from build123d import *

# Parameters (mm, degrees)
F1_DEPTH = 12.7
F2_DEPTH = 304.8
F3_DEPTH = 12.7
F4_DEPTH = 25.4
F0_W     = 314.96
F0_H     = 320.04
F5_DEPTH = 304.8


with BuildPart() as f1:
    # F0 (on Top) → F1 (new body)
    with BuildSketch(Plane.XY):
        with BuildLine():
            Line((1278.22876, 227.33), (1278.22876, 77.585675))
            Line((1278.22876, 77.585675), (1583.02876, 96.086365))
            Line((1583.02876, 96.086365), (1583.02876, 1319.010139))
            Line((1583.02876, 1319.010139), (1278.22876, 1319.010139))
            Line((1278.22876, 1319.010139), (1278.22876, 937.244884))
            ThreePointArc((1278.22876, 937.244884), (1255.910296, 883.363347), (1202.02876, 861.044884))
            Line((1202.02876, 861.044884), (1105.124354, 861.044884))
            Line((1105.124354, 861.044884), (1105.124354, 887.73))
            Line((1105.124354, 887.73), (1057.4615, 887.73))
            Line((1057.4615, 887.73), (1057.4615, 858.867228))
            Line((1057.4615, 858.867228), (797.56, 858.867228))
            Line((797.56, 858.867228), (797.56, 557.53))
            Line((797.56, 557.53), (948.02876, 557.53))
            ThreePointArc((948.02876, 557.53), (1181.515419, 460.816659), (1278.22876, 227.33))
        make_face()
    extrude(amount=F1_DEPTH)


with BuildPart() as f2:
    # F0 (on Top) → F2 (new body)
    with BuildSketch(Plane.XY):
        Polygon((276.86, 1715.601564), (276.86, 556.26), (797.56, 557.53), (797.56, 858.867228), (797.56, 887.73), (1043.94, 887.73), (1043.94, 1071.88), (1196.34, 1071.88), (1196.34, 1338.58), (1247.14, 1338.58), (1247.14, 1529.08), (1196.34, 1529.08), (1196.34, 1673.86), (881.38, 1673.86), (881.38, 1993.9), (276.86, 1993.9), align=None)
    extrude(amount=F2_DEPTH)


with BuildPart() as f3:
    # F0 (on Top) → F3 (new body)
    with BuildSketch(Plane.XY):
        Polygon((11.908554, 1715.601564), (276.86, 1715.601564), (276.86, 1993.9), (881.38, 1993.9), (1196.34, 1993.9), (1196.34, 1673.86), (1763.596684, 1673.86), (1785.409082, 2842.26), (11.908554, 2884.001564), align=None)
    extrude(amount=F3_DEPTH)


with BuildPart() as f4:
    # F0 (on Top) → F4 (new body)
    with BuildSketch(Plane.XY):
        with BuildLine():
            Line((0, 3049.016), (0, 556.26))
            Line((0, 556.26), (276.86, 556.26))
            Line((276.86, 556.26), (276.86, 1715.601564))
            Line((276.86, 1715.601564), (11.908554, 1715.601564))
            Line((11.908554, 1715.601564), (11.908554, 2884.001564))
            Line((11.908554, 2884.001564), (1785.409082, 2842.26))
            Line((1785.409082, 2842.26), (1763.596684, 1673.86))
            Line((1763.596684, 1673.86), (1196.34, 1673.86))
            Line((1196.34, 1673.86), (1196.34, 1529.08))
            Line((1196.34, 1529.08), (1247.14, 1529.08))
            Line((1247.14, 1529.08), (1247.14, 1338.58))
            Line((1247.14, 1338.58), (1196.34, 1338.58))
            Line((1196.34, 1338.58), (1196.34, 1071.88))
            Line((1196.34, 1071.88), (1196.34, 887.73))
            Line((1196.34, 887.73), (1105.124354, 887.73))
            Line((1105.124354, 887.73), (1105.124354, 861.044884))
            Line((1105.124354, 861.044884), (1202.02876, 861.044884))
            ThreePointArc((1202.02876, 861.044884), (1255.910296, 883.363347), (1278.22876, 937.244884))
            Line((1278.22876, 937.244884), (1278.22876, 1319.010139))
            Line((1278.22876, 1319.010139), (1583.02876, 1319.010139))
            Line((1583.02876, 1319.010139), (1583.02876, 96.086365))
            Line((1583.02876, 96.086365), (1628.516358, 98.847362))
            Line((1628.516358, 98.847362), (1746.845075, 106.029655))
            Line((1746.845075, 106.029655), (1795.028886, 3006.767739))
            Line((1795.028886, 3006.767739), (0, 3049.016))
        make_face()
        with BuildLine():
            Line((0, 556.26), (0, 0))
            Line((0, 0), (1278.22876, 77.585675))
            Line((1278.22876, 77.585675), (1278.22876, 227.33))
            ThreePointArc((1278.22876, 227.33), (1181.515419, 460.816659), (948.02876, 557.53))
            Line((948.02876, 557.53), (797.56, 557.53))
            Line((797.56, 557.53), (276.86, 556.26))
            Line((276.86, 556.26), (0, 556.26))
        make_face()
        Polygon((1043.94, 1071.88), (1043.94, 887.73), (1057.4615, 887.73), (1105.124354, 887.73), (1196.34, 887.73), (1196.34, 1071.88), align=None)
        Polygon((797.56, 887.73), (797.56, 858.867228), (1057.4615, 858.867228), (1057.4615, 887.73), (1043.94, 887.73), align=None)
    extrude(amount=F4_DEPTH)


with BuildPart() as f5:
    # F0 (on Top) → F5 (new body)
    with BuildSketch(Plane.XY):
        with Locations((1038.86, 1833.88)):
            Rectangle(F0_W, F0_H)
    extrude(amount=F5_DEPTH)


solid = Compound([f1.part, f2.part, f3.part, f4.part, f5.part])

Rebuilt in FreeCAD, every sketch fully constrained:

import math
import FreeCAD as App
import Part
import Sketcher

V = App.Vector
Q = App.Units.Quantity


def add_polygon(sketch, points):
    """Adds a closed chain of lines whose ends are joined by coincident constraints."""
    first, n = sketch.GeometryCount, len(points)
    for a, b in zip(points, points[1:] + points[:1]):
        sketch.addGeometry(Part.LineSegment(App.Vector(*a, 0), App.Vector(*b, 0)), False)
    for i in range(n):
        sketch.addConstraint(Sketcher.Constraint("Coincident", first + i, 2, first + (i + 1) % n, 1))

doc = App.newDocument("Part")
body = doc.addObject("PartDesign::Body", "Body")

# Sketch on XY plane
sketch1 = body.newObject("Sketcher::SketchObject", "Sketch")
sketch1.AttachmentSupport = (doc.getObject("XY_Plane"), [""])
sketch1.MapMode = "FlatFace"
sketch1.addGeometry(Part.LineSegment(V(1278.22876, 227.33, 0), V(1278.22876, 77.585675, 0)), False)
sketch1.addGeometry(Part.LineSegment(V(1278.22876, 77.585675, 0), V(1583.02876, 96.086365, 0)), False)
sketch1.addGeometry(Part.LineSegment(V(1583.02876, 96.086365, 0), V(1583.02876, 1319.010139, 0)), False)
sketch1.addGeometry(Part.LineSegment(V(1583.02876, 1319.010139, 0), V(1278.22876, 1319.010139, 0)), False)
sketch1.addGeometry(Part.LineSegment(V(1278.22876, 1319.010139, 0), V(1278.22876, 937.244884, 0)), False)
sketch1.addGeometry(Part.ArcOfCircle(Part.Circle(V(1202.028759, 937.244885, 0), V(0, 0, 1), 76.200001), math.radians(-89.999999), math.radians(-0.000001)), False)
sketch1.addGeometry(Part.LineSegment(V(1202.02876, 861.044884, 0), V(1105.124354, 861.044884, 0)), False)
sketch1.addGeometry(Part.LineSegment(V(1105.124354, 861.044884, 0), V(1105.124354, 887.73, 0)), False)
sketch1.addGeometry(Part.LineSegment(V(1105.124354, 887.73, 0), V(1057.4615, 887.73, 0)), False)
sketch1.addGeometry(Part.LineSegment(V(1057.4615, 887.73, 0), V(1057.4615, 858.867228, 0)), False)
sketch1.addGeometry(Part.LineSegment(V(1057.4615, 858.867228, 0), V(797.56, 858.867228, 0)), False)
sketch1.addGeometry(Part.LineSegment(V(797.56, 858.867228, 0), V(797.56, 557.53, 0)), False)
sketch1.addGeometry(Part.LineSegment(V(797.56, 557.53, 0), V(948.02876, 557.53, 0)), False)
sketch1.addGeometry(Part.ArcOfCircle(Part.Circle(V(948.028759, 227.329999, 0), V(0, 0, 1), 330.200001), math.radians(0), math.radians(90)), False)
sketch1.addConstraint(Sketcher.Constraint("Coincident", 0, 2, 1, 1))
sketch1.addConstraint(Sketcher.Constraint("Coincident", 1, 2, 2, 1))
sketch1.addConstraint(Sketcher.Constraint("Coincident", 2, 2, 3, 1))
sketch1.addConstraint(Sketcher.Constraint("Coincident", 3, 2, 4, 1))
sketch1.addConstraint(Sketcher.Constraint("Tangent", 4, 2, 5, 2))
sketch1.addConstraint(Sketcher.Constraint("Tangent", 5, 1, 6, 1))
sketch1.addConstraint(Sketcher.Constraint("Coincident", 6, 2, 7, 1))
sketch1.addConstraint(Sketcher.Constraint("Coincident", 7, 2, 8, 1))
sketch1.addConstraint(Sketcher.Constraint("Coincident", 8, 2, 9, 1))
sketch1.addConstraint(Sketcher.Constraint("Coincident", 9, 2, 10, 1))
sketch1.addConstraint(Sketcher.Constraint("Coincident", 10, 2, 11, 1))
sketch1.addConstraint(Sketcher.Constraint("Coincident", 11, 2, 12, 1))
sketch1.addConstraint(Sketcher.Constraint("Tangent", 12, 2, 13, 2))
sketch1.addConstraint(Sketcher.Constraint("Tangent", 13, 1, 0, 1))
sketch1.addConstraint(Sketcher.Constraint("Vertical", 0))
sketch1.addConstraint(Sketcher.Constraint("Vertical", 2))
sketch1.addConstraint(Sketcher.Constraint("Horizontal", 3))
sketch1.addConstraint(Sketcher.Constraint("Vertical", 4))
sketch1.addConstraint(Sketcher.Constraint("Horizontal", 6))
sketch1.addConstraint(Sketcher.Constraint("Vertical", 7))
sketch1.addConstraint(Sketcher.Constraint("Horizontal", 8))
sketch1.addConstraint(Sketcher.Constraint("Vertical", 9))
sketch1.addConstraint(Sketcher.Constraint("Horizontal", 10))
sketch1.addConstraint(Sketcher.Constraint("Vertical", 11))
sketch1.addConstraint(Sketcher.Constraint("Horizontal", 12))
sketch1.addConstraint(Sketcher.Constraint("Vertical", 0, 2, 3, 2))
sketch1.addConstraint(Sketcher.Constraint("Radius", 5, Q("3 in")))
sketch1.addConstraint(Sketcher.Constraint("Radius", 13, Q("13 in")))
sketch1.addConstraint(Sketcher.Constraint("DistanceX", 3, 2, 3, 1, Q("12 in")))
sketch1.addConstraint(Sketcher.Constraint("DistanceY", 11, 2, 8, 2, Q("13 in")))
sketch1.addConstraint(Sketcher.Constraint("DistanceX", -1, 1, 10, 2, Q("31.4 in")))
sketch1.addConstraint(Sketcher.Constraint("DistanceY", -1, 1, 13, 3, Q("8.95 in")))
sketch1.addConstraint(Sketcher.Constraint("DistanceX", 10, 2, 10, 1, 259.9015))
sketch1.addConstraint(Sketcher.Constraint("DistanceX", 12, 1, 12, 2, 150.46876))
sketch1.addConstraint(Sketcher.Constraint("DistanceY", 11, 2, 11, 1, 301.337228))
sketch1.addConstraint(Sketcher.Constraint("Distance", 1, 305.360959))
sketch1.addConstraint(Sketcher.Constraint("DistanceX", 6, 2, 6, 1, 96.904406))
sketch1.addConstraint(Sketcher.Constraint("DistanceY", 0, 2, 0, 1, 149.744325))
sketch1.addConstraint(Sketcher.Constraint("DistanceY", 2, 1, 2, 2, 1222.923774))
sketch1.addConstraint(Sketcher.Constraint("DistanceY", 4, 2, 4, 1, 381.765255))
pad1 = body.newObject("PartDesign::Pad", "Pad")
pad1.Profile = sketch1
pad1.Length = Q("0.5 in")
body2 = doc.addObject("PartDesign::Body", "Body001")

# Sketch on XY plane
sketch2 = body2.newObject("Sketcher::SketchObject", "Sketch001")
sketch2.AttachmentSupport = (doc.getObject("XY_Plane001"), [""])
sketch2.MapMode = "FlatFace"
add_polygon(sketch2, [(276.86, 556.26), (797.56, 557.53), (797.56, 887.73), (1043.94, 887.73), (1043.94, 1071.88), (1196.34, 1071.88), (1196.34, 1338.58), (1247.14, 1338.58), (1247.14, 1529.08), (1196.34, 1529.08), (1196.34, 1673.86), (881.38, 1673.86), (881.38, 1993.9), (276.86, 1993.9)])  # lines 0-13
sketch2.addConstraint(Sketcher.Constraint("Vertical", 1))
sketch2.addConstraint(Sketcher.Constraint("Horizontal", 2))
sketch2.addConstraint(Sketcher.Constraint("Vertical", 3))
sketch2.addConstraint(Sketcher.Constraint("Horizontal", 4))
sketch2.addConstraint(Sketcher.Constraint("Vertical", 5))
sketch2.addConstraint(Sketcher.Constraint("Horizontal", 6))
sketch2.addConstraint(Sketcher.Constraint("Vertical", 7))
sketch2.addConstraint(Sketcher.Constraint("Horizontal", 8))
sketch2.addConstraint(Sketcher.Constraint("Vertical", 9))
sketch2.addConstraint(Sketcher.Constraint("Horizontal", 10))
sketch2.addConstraint(Sketcher.Constraint("Vertical", 11))
sketch2.addConstraint(Sketcher.Constraint("Horizontal", 12))
sketch2.addConstraint(Sketcher.Constraint("Vertical", 13))
sketch2.addConstraint(Sketcher.Constraint("Vertical", 5, 2, 8, 2))
sketch2.addConstraint(Sketcher.Constraint("DistanceX", 4, 1, 4, 2, Q("6 in")))
sketch2.addConstraint(Sketcher.Constraint("DistanceX", 6, 1, 6, 2, Q("2 in")))
sketch2.addConstraint(Sketcher.Constraint("DistanceY", 1, 1, 1, 2, Q("13 in")))
sketch2.addConstraint(Sketcher.Constraint("DistanceX", 2, 1, 2, 2, Q("9.7 in")))
sketch2.addConstraint(Sketcher.Constraint("DistanceX", 10, 2, 10, 1, Q("12.4 in")))
sketch2.addConstraint(Sketcher.Constraint("DistanceX", 12, 2, 12, 1, Q("23.8 in")))
sketch2.addConstraint(Sketcher.Constraint("DistanceY", 5, 1, 5, 2, Q("10.5 in")))
sketch2.addConstraint(Sketcher.Constraint("DistanceY", 7, 1, 7, 2, Q("7.5 in")))
sketch2.addConstraint(Sketcher.Constraint("DistanceY", 9, 1, 9, 2, Q("5.7 in")))
sketch2.addConstraint(Sketcher.Constraint("DistanceY", 11, 1, 11, 2, Q("12.6 in")))
sketch2.addConstraint(Sketcher.Constraint("DistanceY", 13, 2, 13, 1, Q("56.6 in")))
sketch2.addConstraint(Sketcher.Constraint("DistanceY", 3, 1, 3, 2, Q("7.25 in")))
sketch2.addConstraint(Sketcher.Constraint("DistanceX", -1, 1, 0, 2, Q("31.4 in")))
sketch2.addConstraint(Sketcher.Constraint("DistanceY", -1, 1, 3, 2, Q("42.2 in")))
pad2 = body2.newObject("PartDesign::Pad", "Pad001")
pad2.Profile = sketch2
pad2.Length = Q("12 in")
body3 = doc.addObject("PartDesign::Body", "Body002")

# Sketch on XY plane
sketch3 = body3.newObject("Sketcher::SketchObject", "Sketch002")
sketch3.AttachmentSupport = (doc.getObject("XY_Plane002"), [""])
sketch3.MapMode = "FlatFace"
add_polygon(sketch3, [(11.908554, 1715.601564), (276.86, 1715.601564), (276.86, 1993.9), (1196.34, 1993.9), (1196.34, 1673.86), (1763.596684, 1673.86), (1785.409082, 2842.26), (11.908554, 2884.001564)])  # lines 0-7
sketch3.addConstraint(Sketcher.Constraint("Horizontal", 0))
sketch3.addConstraint(Sketcher.Constraint("Vertical", 1))
sketch3.addConstraint(Sketcher.Constraint("Horizontal", 2))
sketch3.addConstraint(Sketcher.Constraint("Vertical", 3))
sketch3.addConstraint(Sketcher.Constraint("Horizontal", 4))
sketch3.addConstraint(Sketcher.Constraint("Vertical", 7))
sketch3.addConstraint(Sketcher.Constraint("DistanceY", 7, 2, 7, 1, Q("46 in")))
sketch3.addConstraint(Sketcher.Constraint("DistanceX", 2, 1, 2, 2, Q("36.2 in")))
sketch3.addConstraint(Sketcher.Constraint("DistanceY", 3, 2, 3, 1, Q("12.6 in")))
sketch3.addConstraint(Sketcher.Constraint("DistanceY", 4, 2, 5, 2, Q("46 in")))
sketch3.addConstraint(Sketcher.Constraint("DistanceX", -1, 1, 0, 2, Q("10.9 in")))
sketch3.addConstraint(Sketcher.Constraint("DistanceY", -1, 1, 1, 2, Q("78.5 in")))
sketch3.addConstraint(Sketcher.Constraint("Distance", 6, 1773.99168))
sketch3.addConstraint(Sketcher.Constraint("DistanceX", 0, 1, 0, 2, 264.951446))
sketch3.addConstraint(Sketcher.Constraint("DistanceX", 4, 1, 4, 2, 567.256684))
sketch3.addConstraint(Sketcher.Constraint("DistanceY", 1, 1, 1, 2, 278.298436))
pad3 = body3.newObject("PartDesign::Pad", "Pad002")
pad3.Profile = sketch3
pad3.Length = Q("0.5 in")
body4 = doc.addObject("PartDesign::Body", "Body003")

# Sketch on XY plane
sketch4 = body4.newObject("Sketcher::SketchObject", "Sketch003")
sketch4.AttachmentSupport = (doc.getObject("XY_Plane003"), [""])
sketch4.MapMode = "FlatFace"
sketch4.addGeometry(Part.LineSegment(V(0, 3049.016, 0), V(0, 0, 0)), False)
sketch4.addGeometry(Part.LineSegment(V(0, 0, 0), V(1278.22876, 77.585675, 0)), False)
sketch4.addGeometry(Part.LineSegment(V(1278.22876, 77.585675, 0), V(1278.22876, 227.33, 0)), False)
sketch4.addGeometry(Part.ArcOfCircle(Part.Circle(V(948.028759, 227.329999, 0), V(0, 0, 1), 330.200001), math.radians(0), math.radians(90)), False)
sketch4.addGeometry(Part.LineSegment(V(948.02876, 557.53, 0), V(797.56, 557.53, 0)), False)
sketch4.addGeometry(Part.LineSegment(V(797.56, 557.53, 0), V(276.86, 556.26, 0)), False)
sketch4.addGeometry(Part.LineSegment(V(276.86, 556.26, 0), V(276.86, 1715.601564, 0)), False)
sketch4.addGeometry(Part.LineSegment(V(276.86, 1715.601564, 0), V(11.908554, 1715.601564, 0)), False)
sketch4.addGeometry(Part.LineSegment(V(11.908554, 1715.601564, 0), V(11.908554, 2884.001564, 0)), False)
sketch4.addGeometry(Part.LineSegment(V(11.908554, 2884.001564, 0), V(1785.409082, 2842.26, 0)), False)
sketch4.addGeometry(Part.LineSegment(V(1785.409082, 2842.26, 0), V(1763.596684, 1673.86, 0)), False)
sketch4.addGeometry(Part.LineSegment(V(1763.596684, 1673.86, 0), V(1196.34, 1673.86, 0)), False)
sketch4.addGeometry(Part.LineSegment(V(1196.34, 1673.86, 0), V(1196.34, 1529.08, 0)), False)
sketch4.addGeometry(Part.LineSegment(V(1196.34, 1529.08, 0), V(1247.14, 1529.08, 0)), False)
sketch4.addGeometry(Part.LineSegment(V(1247.14, 1529.08, 0), V(1247.14, 1338.58, 0)), False)
sketch4.addGeometry(Part.LineSegment(V(1247.14, 1338.58, 0), V(1196.34, 1338.58, 0)), False)
sketch4.addGeometry(Part.LineSegment(V(1196.34, 1338.58, 0), V(1196.34, 1071.88, 0)), False)
sketch4.addGeometry(Part.LineSegment(V(1196.34, 1071.88, 0), V(1043.94, 1071.88, 0)), False)
sketch4.addGeometry(Part.LineSegment(V(1043.94, 1071.88, 0), V(1043.94, 887.73, 0)), False)
sketch4.addGeometry(Part.LineSegment(V(1043.94, 887.73, 0), V(797.56, 887.73, 0)), False)
sketch4.addGeometry(Part.LineSegment(V(797.56, 887.73, 0), V(797.56, 858.867228, 0)), False)
sketch4.addGeometry(Part.LineSegment(V(797.56, 858.867228, 0), V(1057.4615, 858.867228, 0)), False)
sketch4.addGeometry(Part.LineSegment(V(1057.4615, 858.867228, 0), V(1057.4615, 887.73, 0)), False)
sketch4.addGeometry(Part.LineSegment(V(1057.4615, 887.73, 0), V(1105.124354, 887.73, 0)), False)
sketch4.addGeometry(Part.LineSegment(V(1105.124354, 887.73, 0), V(1105.124354, 861.044884, 0)), False)
sketch4.addGeometry(Part.LineSegment(V(1105.124354, 861.044884, 0), V(1202.02876, 861.044884, 0)), False)
sketch4.addGeometry(Part.ArcOfCircle(Part.Circle(V(1202.028759, 937.244885, 0), V(0, 0, 1), 76.200001), math.radians(-89.999999), math.radians(-0.000001)), False)
sketch4.addGeometry(Part.LineSegment(V(1278.22876, 937.244884, 0), V(1278.22876, 1319.010139, 0)), False)
sketch4.addGeometry(Part.LineSegment(V(1278.22876, 1319.010139, 0), V(1583.02876, 1319.010139, 0)), False)
sketch4.addGeometry(Part.LineSegment(V(1583.02876, 1319.010139, 0), V(1583.02876, 96.086365, 0)), False)
sketch4.addGeometry(Part.LineSegment(V(1583.02876, 96.086365, 0), V(1628.516358, 98.847362, 0)), False)
sketch4.addGeometry(Part.LineSegment(V(1628.516358, 98.847362, 0), V(1746.845075, 106.029655, 0)), False)
sketch4.addGeometry(Part.LineSegment(V(1746.845075, 106.029655, 0), V(1795.028886, 3006.767739, 0)), False)
sketch4.addGeometry(Part.LineSegment(V(1795.028886, 3006.767739, 0), V(0, 3049.016, 0)), False)
sketch4.addConstraint(Sketcher.Constraint("Coincident", 0, 2, 1, 1))
sketch4.addConstraint(Sketcher.Constraint("Coincident", 1, 2, 2, 1))
sketch4.addConstraint(Sketcher.Constraint("Tangent", 2, 2, 3, 1))
sketch4.addConstraint(Sketcher.Constraint("Tangent", 3, 2, 4, 1))
sketch4.addConstraint(Sketcher.Constraint("Coincident", 4, 2, 5, 1))
sketch4.addConstraint(Sketcher.Constraint("Coincident", 5, 2, 6, 1))
sketch4.addConstraint(Sketcher.Constraint("Coincident", 6, 2, 7, 1))
sketch4.addConstraint(Sketcher.Constraint("Coincident", 7, 2, 8, 1))
sketch4.addConstraint(Sketcher.Constraint("Coincident", 8, 2, 9, 1))
sketch4.addConstraint(Sketcher.Constraint("Coincident", 9, 2, 10, 1))
sketch4.addConstraint(Sketcher.Constraint("Coincident", 10, 2, 11, 1))
sketch4.addConstraint(Sketcher.Constraint("Coincident", 11, 2, 12, 1))
sketch4.addConstraint(Sketcher.Constraint("Coincident", 12, 2, 13, 1))
sketch4.addConstraint(Sketcher.Constraint("Coincident", 13, 2, 14, 1))
sketch4.addConstraint(Sketcher.Constraint("Coincident", 14, 2, 15, 1))
sketch4.addConstraint(Sketcher.Constraint("Coincident", 15, 2, 16, 1))
sketch4.addConstraint(Sketcher.Constraint("Coincident", 16, 2, 17, 1))
sketch4.addConstraint(Sketcher.Constraint("Coincident", 17, 2, 18, 1))
sketch4.addConstraint(Sketcher.Constraint("Coincident", 18, 2, 19, 1))
sketch4.addConstraint(Sketcher.Constraint("Coincident", 19, 2, 20, 1))
sketch4.addConstraint(Sketcher.Constraint("Coincident", 20, 2, 21, 1))
sketch4.addConstraint(Sketcher.Constraint("Coincident", 21, 2, 22, 1))
sketch4.addConstraint(Sketcher.Constraint("Coincident", 22, 2, 23, 1))
sketch4.addConstraint(Sketcher.Constraint("Coincident", 23, 2, 24, 1))
sketch4.addConstraint(Sketcher.Constraint("Coincident", 24, 2, 25, 1))
sketch4.addConstraint(Sketcher.Constraint("Tangent", 25, 2, 26, 1))
sketch4.addConstraint(Sketcher.Constraint("Tangent", 26, 2, 27, 1))
sketch4.addConstraint(Sketcher.Constraint("Coincident", 27, 2, 28, 1))
sketch4.addConstraint(Sketcher.Constraint("Coincident", 28, 2, 29, 1))
sketch4.addConstraint(Sketcher.Constraint("Coincident", 29, 2, 30, 1))
sketch4.addConstraint(Sketcher.Constraint("Coincident", 30, 2, 31, 1))
sketch4.addConstraint(Sketcher.Constraint("Coincident", 31, 2, 32, 1))
sketch4.addConstraint(Sketcher.Constraint("Coincident", 32, 2, 33, 1))
sketch4.addConstraint(Sketcher.Constraint("Coincident", 33, 2, 0, 1))
sketch4.addConstraint(Sketcher.Constraint("Vertical", 0))
sketch4.addConstraint(Sketcher.Constraint("Vertical", 2))
sketch4.addConstraint(Sketcher.Constraint("Horizontal", 4))
sketch4.addConstraint(Sketcher.Constraint("Vertical", 6))
sketch4.addConstraint(Sketcher.Constraint("Horizontal", 7))
sketch4.addConstraint(Sketcher.Constraint("Vertical", 8))
sketch4.addConstraint(Sketcher.Constraint("Horizontal", 11))
sketch4.addConstraint(Sketcher.Constraint("Vertical", 12))
sketch4.addConstraint(Sketcher.Constraint("Horizontal", 13))
sketch4.addConstraint(Sketcher.Constraint("Vertical", 14))
sketch4.addConstraint(Sketcher.Constraint("Horizontal", 15))
sketch4.addConstraint(Sketcher.Constraint("Vertical", 16))
sketch4.addConstraint(Sketcher.Constraint("Horizontal", 17))
sketch4.addConstraint(Sketcher.Constraint("Vertical", 18))
sketch4.addConstraint(Sketcher.Constraint("Horizontal", 19))
sketch4.addConstraint(Sketcher.Constraint("Vertical", 20))
sketch4.addConstraint(Sketcher.Constraint("Horizontal", 21))
sketch4.addConstraint(Sketcher.Constraint("Vertical", 22))
sketch4.addConstraint(Sketcher.Constraint("Horizontal", 23))
sketch4.addConstraint(Sketcher.Constraint("Vertical", 24))
sketch4.addConstraint(Sketcher.Constraint("Horizontal", 25))
sketch4.addConstraint(Sketcher.Constraint("Vertical", 27))
sketch4.addConstraint(Sketcher.Constraint("Horizontal", 28))
sketch4.addConstraint(Sketcher.Constraint("Vertical", 29))
sketch4.addConstraint(Sketcher.Constraint("Coincident", 0, 2, -1, 1))
sketch4.addConstraint(Sketcher.Constraint("Parallel", 1, 30))
sketch4.addConstraint(Sketcher.Constraint("Parallel", 30, 31))
sketch4.addConstraint(Sketcher.Constraint("Parallel", 9, 33))
sketch4.addConstraint(Sketcher.Constraint("Horizontal", 19, 2, 22, 2))
sketch4.addConstraint(Sketcher.Constraint("Vertical", 12, 2, 15, 2))
sketch4.addConstraint(Sketcher.Constraint("Vertical", 4, 2, 19, 2))
sketch4.addConstraint(Sketcher.Constraint("Vertical", 2, 2, 26, 2))
sketch4.addConstraint(Sketcher.Constraint("Radius", 3, Q("13 in")))
sketch4.addConstraint(Sketcher.Constraint("Radius", 26, Q("3 in")))
sketch4.addConstraint(Sketcher.Constraint("DistanceX", 13, 1, 13, 2, Q("2 in")))
sketch4.addConstraint(Sketcher.Constraint("DistanceX", 17, 2, 17, 1, Q("6 in")))
sketch4.addConstraint(Sketcher.Constraint("DistanceX", 28, 1, 28, 2, Q("12 in")))
sketch4.addConstraint(Sketcher.Constraint("DistanceY", 8, 1, 8, 2, Q("46 in")))
sketch4.addConstraint(Sketcher.Constraint("DistanceX", 19, 2, 19, 1, Q("9.7 in")))
sketch4.addConstraint(Sketcher.Constraint("DistanceY", 12, 2, 12, 1, Q("5.7 in")))
sketch4.addConstraint(Sketcher.Constraint("DistanceY", 14, 2, 14, 1, Q("7.5 in")))
sketch4.addConstraint(Sketcher.Constraint("DistanceY", 16, 2, 16, 1, Q("10.5 in")))
sketch4.addConstraint(Sketcher.Constraint("DistanceY", 10, 2, 9, 2, Q("46 in")))
sketch4.addConstraint(Sketcher.Constraint("DistanceY", 3, 2, 18, 2, Q("13 in")))
sketch4.addConstraint(Sketcher.Constraint("DistanceY", 0, 2, 0, 1, Q("120.04 in")))
sketch4.addConstraint(Sketcher.Constraint("DistanceY", 18, 2, 18, 1, Q("7.25 in")))
sketch4.addConstraint(Sketcher.Constraint("DistanceX", -1, 1, 4, 2, Q("31.4 in")))
sketch4.addConstraint(Sketcher.Constraint("DistanceX", -1, 1, 5, 2, Q("10.9 in")))
sketch4.addConstraint(Sketcher.Constraint("DistanceY", -1, 1, 5, 2, Q("21.9 in")))
sketch4.addConstraint(Sketcher.Constraint("DistanceY", -1, 1, 9, 2, Q("111.9 in")))
sketch4.addConstraint(Sketcher.Constraint("Distance", 33, Q("70.69 in")))
sketch4.addConstraint(Sketcher.Constraint("DistanceX", 21, 1, 21, 2, 259.9015))
sketch4.addConstraint(Sketcher.Constraint("DistanceX", 4, 2, 4, 1, 150.46876))
sketch4.addConstraint(Sketcher.Constraint("DistanceX", 29, 2, 30, 2, 45.487598))
sketch4.addConstraint(Sketcher.Constraint("DistanceX", 10, 2, 32, 2, 31.432202))
sketch4.addConstraint(Sketcher.Constraint("Distance", 9, 1773.99168))
sketch4.addConstraint(Sketcher.Constraint("Distance", 31, 118.546491))
sketch4.addConstraint(Sketcher.Constraint("DistanceX", 7, 2, 7, 1, 264.951446))
sketch4.addConstraint(Sketcher.Constraint("DistanceX", 11, 2, 11, 1, 567.256684))
sketch4.addConstraint(Sketcher.Constraint("DistanceX", 23, 1, 23, 2, 47.662854))
sketch4.addConstraint(Sketcher.Constraint("DistanceY", 2, 1, 2, 2, 149.744325))
sketch4.addConstraint(Sketcher.Constraint("DistanceY", 20, 2, 20, 1, 28.862772))
sketch4.addConstraint(Sketcher.Constraint("DistanceY", 24, 2, 24, 1, 26.685116))
sketch4.addConstraint(Sketcher.Constraint("DistanceY", 27, 1, 27, 2, 381.765255))
sketch4.addConstraint(Sketcher.Constraint("DistanceY", 29, 2, 29, 1, 1222.923774))
pad4 = body4.newObject("PartDesign::Pad", "Pad003")
pad4.Profile = sketch4
pad4.Length = Q("1 in")
body5 = doc.addObject("PartDesign::Body", "Body004")

# Sketch on XY plane
sketch5 = body5.newObject("Sketcher::SketchObject", "Sketch004")
sketch5.AttachmentSupport = (doc.getObject("XY_Plane004"), [""])
sketch5.MapMode = "FlatFace"
add_polygon(sketch5, [(881.38, 1993.9), (881.38, 1673.86), (1196.34, 1673.86), (1196.34, 1993.9)])  # lines 0-3
sketch5.addConstraint(Sketcher.Constraint("Vertical", 0))
sketch5.addConstraint(Sketcher.Constraint("Horizontal", 1))
sketch5.addConstraint(Sketcher.Constraint("Vertical", 2))
sketch5.addConstraint(Sketcher.Constraint("Horizontal", 3))
sketch5.addConstraint(Sketcher.Constraint("DistanceX", 1, 1, 1, 2, Q("12.4 in")))
sketch5.addConstraint(Sketcher.Constraint("DistanceY", 0, 2, 0, 1, Q("12.6 in")))
sketch5.addConstraint(Sketcher.Constraint("DistanceX", -1, 1, 0, 2, Q("34.7 in")))
sketch5.addConstraint(Sketcher.Constraint("DistanceY", -1, 1, 0, 2, Q("65.9 in")))
pad5 = body5.newObject("PartDesign::Pad", "Pad004")
pad5.Profile = sketch5
pad5.Length = Q("12 in")

doc.recompute()
